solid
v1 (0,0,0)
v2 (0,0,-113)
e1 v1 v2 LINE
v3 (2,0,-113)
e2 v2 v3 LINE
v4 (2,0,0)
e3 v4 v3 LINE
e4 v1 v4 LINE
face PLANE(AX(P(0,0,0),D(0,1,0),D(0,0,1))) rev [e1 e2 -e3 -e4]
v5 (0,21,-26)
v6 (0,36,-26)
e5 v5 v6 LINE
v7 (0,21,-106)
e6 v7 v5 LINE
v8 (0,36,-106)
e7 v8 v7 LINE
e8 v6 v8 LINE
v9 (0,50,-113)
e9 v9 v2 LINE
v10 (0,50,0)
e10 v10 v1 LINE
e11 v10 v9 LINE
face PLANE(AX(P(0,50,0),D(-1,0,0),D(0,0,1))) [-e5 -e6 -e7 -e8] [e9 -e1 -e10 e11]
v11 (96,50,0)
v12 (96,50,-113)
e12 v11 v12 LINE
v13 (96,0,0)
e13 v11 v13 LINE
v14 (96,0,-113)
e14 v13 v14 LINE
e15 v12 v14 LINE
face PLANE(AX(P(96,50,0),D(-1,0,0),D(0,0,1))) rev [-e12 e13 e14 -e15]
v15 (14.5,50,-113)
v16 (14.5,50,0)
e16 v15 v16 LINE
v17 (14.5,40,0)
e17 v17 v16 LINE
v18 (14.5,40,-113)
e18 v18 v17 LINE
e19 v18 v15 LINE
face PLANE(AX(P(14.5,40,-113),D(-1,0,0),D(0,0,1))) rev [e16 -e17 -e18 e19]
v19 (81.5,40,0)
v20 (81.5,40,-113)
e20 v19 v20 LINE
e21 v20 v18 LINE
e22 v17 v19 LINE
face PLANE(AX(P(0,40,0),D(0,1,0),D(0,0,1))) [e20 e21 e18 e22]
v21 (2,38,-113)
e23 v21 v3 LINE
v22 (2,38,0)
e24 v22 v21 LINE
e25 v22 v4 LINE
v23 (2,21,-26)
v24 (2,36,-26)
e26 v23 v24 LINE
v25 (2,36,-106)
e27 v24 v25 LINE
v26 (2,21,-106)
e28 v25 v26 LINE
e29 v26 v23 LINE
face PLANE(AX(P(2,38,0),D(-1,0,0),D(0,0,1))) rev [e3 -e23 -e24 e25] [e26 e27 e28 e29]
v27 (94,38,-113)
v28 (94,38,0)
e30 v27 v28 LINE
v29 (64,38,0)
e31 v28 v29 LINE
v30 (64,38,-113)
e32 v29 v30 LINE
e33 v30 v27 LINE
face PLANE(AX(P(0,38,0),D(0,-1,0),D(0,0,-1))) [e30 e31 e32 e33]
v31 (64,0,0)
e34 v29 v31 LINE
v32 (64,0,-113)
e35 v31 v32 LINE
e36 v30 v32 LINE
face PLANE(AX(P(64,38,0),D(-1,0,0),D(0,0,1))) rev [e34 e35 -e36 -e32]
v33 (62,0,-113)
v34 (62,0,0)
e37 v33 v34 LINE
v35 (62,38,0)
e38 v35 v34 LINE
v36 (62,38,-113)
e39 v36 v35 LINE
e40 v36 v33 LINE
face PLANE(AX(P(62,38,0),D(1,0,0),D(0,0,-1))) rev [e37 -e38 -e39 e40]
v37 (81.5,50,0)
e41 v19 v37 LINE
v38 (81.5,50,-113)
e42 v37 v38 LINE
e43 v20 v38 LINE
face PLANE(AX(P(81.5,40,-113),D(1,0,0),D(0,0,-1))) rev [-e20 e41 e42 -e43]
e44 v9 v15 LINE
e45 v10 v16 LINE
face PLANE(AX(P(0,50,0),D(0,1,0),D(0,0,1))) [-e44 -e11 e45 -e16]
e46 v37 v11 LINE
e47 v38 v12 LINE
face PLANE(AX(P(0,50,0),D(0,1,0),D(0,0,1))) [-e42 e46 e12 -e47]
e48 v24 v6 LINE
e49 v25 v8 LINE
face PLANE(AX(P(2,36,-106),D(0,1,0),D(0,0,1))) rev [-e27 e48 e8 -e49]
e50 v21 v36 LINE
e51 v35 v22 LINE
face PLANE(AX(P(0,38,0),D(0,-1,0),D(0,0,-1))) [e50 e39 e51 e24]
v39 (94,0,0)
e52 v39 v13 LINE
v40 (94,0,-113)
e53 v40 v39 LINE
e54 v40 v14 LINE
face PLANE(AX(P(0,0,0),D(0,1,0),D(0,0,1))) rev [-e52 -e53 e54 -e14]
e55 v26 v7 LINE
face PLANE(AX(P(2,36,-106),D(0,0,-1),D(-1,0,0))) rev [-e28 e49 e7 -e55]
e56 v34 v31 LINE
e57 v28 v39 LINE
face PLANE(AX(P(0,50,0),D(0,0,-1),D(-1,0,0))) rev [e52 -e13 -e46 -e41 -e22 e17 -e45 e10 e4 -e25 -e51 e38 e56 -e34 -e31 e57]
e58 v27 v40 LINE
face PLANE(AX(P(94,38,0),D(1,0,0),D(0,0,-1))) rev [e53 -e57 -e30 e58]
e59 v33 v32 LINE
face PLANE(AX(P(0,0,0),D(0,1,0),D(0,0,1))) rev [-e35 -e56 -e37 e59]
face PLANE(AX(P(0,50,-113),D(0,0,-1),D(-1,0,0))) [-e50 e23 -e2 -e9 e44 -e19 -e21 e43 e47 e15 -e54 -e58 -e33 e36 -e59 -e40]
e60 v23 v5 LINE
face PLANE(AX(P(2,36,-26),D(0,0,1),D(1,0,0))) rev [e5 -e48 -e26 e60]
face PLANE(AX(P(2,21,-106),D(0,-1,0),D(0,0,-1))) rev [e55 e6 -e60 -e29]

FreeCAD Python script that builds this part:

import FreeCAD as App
import Part
import Sketcher

V = App.Vector
Q = App.Units.Quantity

doc = App.newDocument("Part")
params = doc.addObject("Spreadsheet::Sheet", "Params")
for row, (alias, value) in enumerate([
    ("sketch1_width", "96 mm"),
    ("sketch1_height", "113 mm"),
    ("pad1_length", "50 mm"),
    ("sketch2_width", "67 mm"),
    ("sketch2_height", "113 mm"),
    ("pocket1_length", "10 mm"),
    ("sketch3_width", "60 mm"),
    ("sketch3_width2", "30 mm"),
    ("sketch3_height", "113 mm"),
    ("pocket2_length", "38 mm"),
    ("sketch4_width", "15 mm"),
    ("sketch4_height", "80 mm"),
    ("pocket3_length", "2 mm"),
], start=1):
    params.set(f"A{row}", alias)
    params.set(f"B{row}", "=" + value)
    params.setAlias(f"B{row}", alias)

body = doc.addObject("PartDesign::Body", "Body")

# Sketch on XZ plane
sketch1 = body.newObject("Sketcher::SketchObject", "Sketch")
sketch1.AttachmentSupport = (doc.getObject("XZ_Plane"), [""])
sketch1.MapMode = "FlatFace"
sketch1.addGeometry([
    Part.LineSegment(V(0, -113, 0), V(0, 0, 0)),
    Part.LineSegment(V(0, 0, 0), V(96, 0, 0)),
    Part.LineSegment(V(96, 0, 0), V(96, -113, 0)),
    Part.LineSegment(V(96, -113, 0), V(0, -113, 0)),
], False)
sketch1.addConstraint([
    Sketcher.Constraint("Coincident", 0, 2, 1, 1),
    Sketcher.Constraint("Coincident", 1, 2, 2, 1),
    Sketcher.Constraint("Coincident", 2, 2, 3, 1),
    Sketcher.Constraint("Coincident", 3, 2, 0, 1),
    Sketcher.Constraint("Vertical", 0),
    Sketcher.Constraint("Horizontal", 1),
    Sketcher.Constraint("Vertical", 2),
    Sketcher.Constraint("Horizontal", 3),
    Sketcher.Constraint("Coincident", 0, 2, -1, 1),
    Sketcher.Constraint("DistanceX", 1, 1, 1, 2, Q("96 mm")),
    Sketcher.Constraint("DistanceY", 0, 1, 0, 2, Q("113 mm")),
])
sketch1.setExpression("Constraints[9]", "Params.sketch1_width")
sketch1.setExpression("Constraints[10]", "Params.sketch1_height")
pad1 = body.newObject("PartDesign::Pad", "Pad")
pad1.Profile = sketch1
pad1.setExpression("Length", "Params.pad1_length")
pad1.Reversed = True

# Sketch on XZ plane
sketch2 = body.newObject("Sketcher::SketchObject", "Sketch001")
sketch2.AttachmentSupport = (doc.getObject("XZ_Plane"), [""])
sketch2.MapMode = "FlatFace"
sketch2.AttachmentOffset = App.Placement(V(0, 0, -50), App.Rotation())
sketch2.addGeometry([
    Part.LineSegment(V(14.5, -113, 0), V(14.5, 0, 0)),
    Part.LineSegment(V(14.5, 0, 0), V(81.5, 0, 0)),
    Part.LineSegment(V(81.5, 0, 0), V(81.5, -113, 0)),
    Part.LineSegment(V(81.5, -113, 0), V(14.5, -113, 0)),
], False)
sketch2.addConstraint([
    Sketcher.Constraint("Coincident", 0, 2, 1, 1),
    Sketcher.Constraint("Coincident", 1, 2, 2, 1),
    Sketcher.Constraint("Coincident", 2, 2, 3, 1),
    Sketcher.Constraint("Coincident", 3, 2, 0, 1),
    Sketcher.Constraint("Vertical", 0),
    Sketcher.Constraint("Horizontal", 1),
    Sketcher.Constraint("Vertical", 2),
    Sketcher.Constraint("Horizontal", 3),
    Sketcher.Constraint("PointOnObject", 0, 2, -1),
    Sketcher.Constraint("DistanceX", 1, 1, 1, 2, Q("67 mm")),
    Sketcher.Constraint("DistanceY", 0, 1, 0, 2, Q("113 mm")),
    Sketcher.Constraint("DistanceX", -1, 1, 0, 2, Q("14.5 mm")),
])
sketch2.setExpression("Constraints[9]", "Params.sketch2_width")
sketch2.setExpression("Constraints[10]", "Params.sketch2_height")
pocket1 = body.newObject("PartDesign::Pocket", "Pocket")
pocket1.Profile = sketch2
pocket1.setExpression("Length", "Params.pocket1_length")
pocket1.Reversed = True

# Sketch on XZ plane
sketch3 = body.newObject("Sketcher::SketchObject", "Sketch002")
sketch3.AttachmentSupport = (doc.getObject("XZ_Plane"), [""])
sketch3.MapMode = "FlatFace"
sketch3.addGeometry([
    Part.LineSegment(V(2, 0, 0), V(2, -113, 0)),  # 0
    Part.LineSegment(V(2, -113, 0), V(62, -113, 0)),  # 1
    Part.LineSegment(V(62, -113, 0), V(62, 0, 0)),  # 2
    Part.LineSegment(V(62, 0, 0), V(2, 0, 0)),  # 3
    Part.LineSegment(V(64, 0, 0), V(64, -113, 0)),  # 4
    Part.LineSegment(V(64, -113, 0), V(94, -113, 0)),  # 5
    Part.LineSegment(V(94, -113, 0), V(94, 0, 0)),  # 6
    Part.LineSegment(V(94, 0, 0), V(64, 0, 0)),  # 7
], False)
sketch3.addConstraint([
    Sketcher.Constraint("Coincident", 0, 2, 1, 1),
    Sketcher.Constraint("Coincident", 1, 2, 2, 1),
    Sketcher.Constraint("Coincident", 2, 2, 3, 1),
    Sketcher.Constraint("Coincident", 3, 2, 0, 1),
    Sketcher.Constraint("Coincident", 4, 2, 5, 1),
    Sketcher.Constraint("Coincident", 5, 2, 6, 1),
    Sketcher.Constraint("Coincident", 6, 2, 7, 1),
    Sketcher.Constraint("Coincident", 7, 2, 4, 1),
    Sketcher.Constraint("Vertical", 0),
    Sketcher.Constraint("Horizontal", 1),
    Sketcher.Constraint("Vertical", 2),
    Sketcher.Constraint("Horizontal", 3),
    Sketcher.Constraint("Vertical", 4),
    Sketcher.Constraint("Horizontal", 5),
    Sketcher.Constraint("Vertical", 6),
    Sketcher.Constraint("Horizontal", 7),
    Sketcher.Constraint("PointOnObject", 2, 2, -1),
    Sketcher.Constraint("PointOnObject", 6, 2, -1),
    Sketcher.Constraint("Horizontal", 1, 2, 4, 2),
    Sketcher.Constraint("DistanceX", 1, 1, 1, 2, Q("60 mm")),
    Sketcher.Constraint("DistanceX", 5, 1, 5, 2, Q("30 mm")),
    Sketcher.Constraint("DistanceY", 0, 2, 0, 1, Q("113 mm")),
    Sketcher.Constraint("DistanceX", -1, 1, 0, 2, Q("2 mm")),
    Sketcher.Constraint("DistanceX", -1, 1, 4, 2, Q("64 mm")),
])
sketch3.setExpression("Constraints[19]", "Params.sketch3_width")
sketch3.setExpression("Constraints[20]", "Params.sketch3_width2")
sketch3.setExpression("Constraints[21]", "Params.sketch3_height")
pocket2 = body.newObject("PartDesign::Pocket", "Pocket001")
pocket2.Profile = sketch3
pocket2.setExpression("Length", "Params.pocket2_length")

# Sketch on YZ plane
sketch4 = body.newObject("Sketcher::SketchObject", "Sketch003")
sketch4.AttachmentSupport = (doc.getObject("YZ_Plane"), [""])
sketch4.MapMode = "FlatFace"
sketch4.addGeometry([
    Part.LineSegment(V(36, -106, 0), V(21, -106, 0)),
    Part.LineSegment(V(21, -106, 0), V(21, -26, 0)),
    Part.LineSegment(V(21, -26, 0), V(36, -26, 0)),
    Part.LineSegment(V(36, -26, 0), V(36, -106, 0)),
], False)
sketch4.addConstraint([
    Sketcher.Constraint("Coincident", 0, 2, 1, 1),
    Sketcher.Constraint("Coincident", 1, 2, 2, 1),
    Sketcher.Constraint("Coincident", 2, 2, 3, 1),
    Sketcher.Constraint("Coincident", 3, 2, 0, 1),
    Sketcher.Constraint("Horizontal", 0),
    Sketcher.Constraint("Vertical", 1),
    Sketcher.Constraint("Horizontal", 2),
    Sketcher.Constraint("Vertical", 3),
    Sketcher.Constraint("DistanceX", 0, 2, 0, 1, Q("15 mm")),
    Sketcher.Constraint("DistanceY", 1, 1, 1, 2, Q("80 mm")),
    Sketcher.Constraint("DistanceX", -1, 1, 0, 2, Q("21 mm")),
    Sketcher.Constraint("DistanceY", 0, 2, -1, 1, Q("106 mm")),
])
sketch4.setExpression("Constraints[8]", "Params.sketch4_width")
sketch4.setExpression("Constraints[9]", "Params.sketch4_height")
pocket3 = body.newObject("PartDesign::Pocket", "Pocket002")
pocket3.Profile = sketch4
pocket3.setExpression("Length", "Params.pocket3_length")
pocket3.Reversed = True

doc.recompute()
